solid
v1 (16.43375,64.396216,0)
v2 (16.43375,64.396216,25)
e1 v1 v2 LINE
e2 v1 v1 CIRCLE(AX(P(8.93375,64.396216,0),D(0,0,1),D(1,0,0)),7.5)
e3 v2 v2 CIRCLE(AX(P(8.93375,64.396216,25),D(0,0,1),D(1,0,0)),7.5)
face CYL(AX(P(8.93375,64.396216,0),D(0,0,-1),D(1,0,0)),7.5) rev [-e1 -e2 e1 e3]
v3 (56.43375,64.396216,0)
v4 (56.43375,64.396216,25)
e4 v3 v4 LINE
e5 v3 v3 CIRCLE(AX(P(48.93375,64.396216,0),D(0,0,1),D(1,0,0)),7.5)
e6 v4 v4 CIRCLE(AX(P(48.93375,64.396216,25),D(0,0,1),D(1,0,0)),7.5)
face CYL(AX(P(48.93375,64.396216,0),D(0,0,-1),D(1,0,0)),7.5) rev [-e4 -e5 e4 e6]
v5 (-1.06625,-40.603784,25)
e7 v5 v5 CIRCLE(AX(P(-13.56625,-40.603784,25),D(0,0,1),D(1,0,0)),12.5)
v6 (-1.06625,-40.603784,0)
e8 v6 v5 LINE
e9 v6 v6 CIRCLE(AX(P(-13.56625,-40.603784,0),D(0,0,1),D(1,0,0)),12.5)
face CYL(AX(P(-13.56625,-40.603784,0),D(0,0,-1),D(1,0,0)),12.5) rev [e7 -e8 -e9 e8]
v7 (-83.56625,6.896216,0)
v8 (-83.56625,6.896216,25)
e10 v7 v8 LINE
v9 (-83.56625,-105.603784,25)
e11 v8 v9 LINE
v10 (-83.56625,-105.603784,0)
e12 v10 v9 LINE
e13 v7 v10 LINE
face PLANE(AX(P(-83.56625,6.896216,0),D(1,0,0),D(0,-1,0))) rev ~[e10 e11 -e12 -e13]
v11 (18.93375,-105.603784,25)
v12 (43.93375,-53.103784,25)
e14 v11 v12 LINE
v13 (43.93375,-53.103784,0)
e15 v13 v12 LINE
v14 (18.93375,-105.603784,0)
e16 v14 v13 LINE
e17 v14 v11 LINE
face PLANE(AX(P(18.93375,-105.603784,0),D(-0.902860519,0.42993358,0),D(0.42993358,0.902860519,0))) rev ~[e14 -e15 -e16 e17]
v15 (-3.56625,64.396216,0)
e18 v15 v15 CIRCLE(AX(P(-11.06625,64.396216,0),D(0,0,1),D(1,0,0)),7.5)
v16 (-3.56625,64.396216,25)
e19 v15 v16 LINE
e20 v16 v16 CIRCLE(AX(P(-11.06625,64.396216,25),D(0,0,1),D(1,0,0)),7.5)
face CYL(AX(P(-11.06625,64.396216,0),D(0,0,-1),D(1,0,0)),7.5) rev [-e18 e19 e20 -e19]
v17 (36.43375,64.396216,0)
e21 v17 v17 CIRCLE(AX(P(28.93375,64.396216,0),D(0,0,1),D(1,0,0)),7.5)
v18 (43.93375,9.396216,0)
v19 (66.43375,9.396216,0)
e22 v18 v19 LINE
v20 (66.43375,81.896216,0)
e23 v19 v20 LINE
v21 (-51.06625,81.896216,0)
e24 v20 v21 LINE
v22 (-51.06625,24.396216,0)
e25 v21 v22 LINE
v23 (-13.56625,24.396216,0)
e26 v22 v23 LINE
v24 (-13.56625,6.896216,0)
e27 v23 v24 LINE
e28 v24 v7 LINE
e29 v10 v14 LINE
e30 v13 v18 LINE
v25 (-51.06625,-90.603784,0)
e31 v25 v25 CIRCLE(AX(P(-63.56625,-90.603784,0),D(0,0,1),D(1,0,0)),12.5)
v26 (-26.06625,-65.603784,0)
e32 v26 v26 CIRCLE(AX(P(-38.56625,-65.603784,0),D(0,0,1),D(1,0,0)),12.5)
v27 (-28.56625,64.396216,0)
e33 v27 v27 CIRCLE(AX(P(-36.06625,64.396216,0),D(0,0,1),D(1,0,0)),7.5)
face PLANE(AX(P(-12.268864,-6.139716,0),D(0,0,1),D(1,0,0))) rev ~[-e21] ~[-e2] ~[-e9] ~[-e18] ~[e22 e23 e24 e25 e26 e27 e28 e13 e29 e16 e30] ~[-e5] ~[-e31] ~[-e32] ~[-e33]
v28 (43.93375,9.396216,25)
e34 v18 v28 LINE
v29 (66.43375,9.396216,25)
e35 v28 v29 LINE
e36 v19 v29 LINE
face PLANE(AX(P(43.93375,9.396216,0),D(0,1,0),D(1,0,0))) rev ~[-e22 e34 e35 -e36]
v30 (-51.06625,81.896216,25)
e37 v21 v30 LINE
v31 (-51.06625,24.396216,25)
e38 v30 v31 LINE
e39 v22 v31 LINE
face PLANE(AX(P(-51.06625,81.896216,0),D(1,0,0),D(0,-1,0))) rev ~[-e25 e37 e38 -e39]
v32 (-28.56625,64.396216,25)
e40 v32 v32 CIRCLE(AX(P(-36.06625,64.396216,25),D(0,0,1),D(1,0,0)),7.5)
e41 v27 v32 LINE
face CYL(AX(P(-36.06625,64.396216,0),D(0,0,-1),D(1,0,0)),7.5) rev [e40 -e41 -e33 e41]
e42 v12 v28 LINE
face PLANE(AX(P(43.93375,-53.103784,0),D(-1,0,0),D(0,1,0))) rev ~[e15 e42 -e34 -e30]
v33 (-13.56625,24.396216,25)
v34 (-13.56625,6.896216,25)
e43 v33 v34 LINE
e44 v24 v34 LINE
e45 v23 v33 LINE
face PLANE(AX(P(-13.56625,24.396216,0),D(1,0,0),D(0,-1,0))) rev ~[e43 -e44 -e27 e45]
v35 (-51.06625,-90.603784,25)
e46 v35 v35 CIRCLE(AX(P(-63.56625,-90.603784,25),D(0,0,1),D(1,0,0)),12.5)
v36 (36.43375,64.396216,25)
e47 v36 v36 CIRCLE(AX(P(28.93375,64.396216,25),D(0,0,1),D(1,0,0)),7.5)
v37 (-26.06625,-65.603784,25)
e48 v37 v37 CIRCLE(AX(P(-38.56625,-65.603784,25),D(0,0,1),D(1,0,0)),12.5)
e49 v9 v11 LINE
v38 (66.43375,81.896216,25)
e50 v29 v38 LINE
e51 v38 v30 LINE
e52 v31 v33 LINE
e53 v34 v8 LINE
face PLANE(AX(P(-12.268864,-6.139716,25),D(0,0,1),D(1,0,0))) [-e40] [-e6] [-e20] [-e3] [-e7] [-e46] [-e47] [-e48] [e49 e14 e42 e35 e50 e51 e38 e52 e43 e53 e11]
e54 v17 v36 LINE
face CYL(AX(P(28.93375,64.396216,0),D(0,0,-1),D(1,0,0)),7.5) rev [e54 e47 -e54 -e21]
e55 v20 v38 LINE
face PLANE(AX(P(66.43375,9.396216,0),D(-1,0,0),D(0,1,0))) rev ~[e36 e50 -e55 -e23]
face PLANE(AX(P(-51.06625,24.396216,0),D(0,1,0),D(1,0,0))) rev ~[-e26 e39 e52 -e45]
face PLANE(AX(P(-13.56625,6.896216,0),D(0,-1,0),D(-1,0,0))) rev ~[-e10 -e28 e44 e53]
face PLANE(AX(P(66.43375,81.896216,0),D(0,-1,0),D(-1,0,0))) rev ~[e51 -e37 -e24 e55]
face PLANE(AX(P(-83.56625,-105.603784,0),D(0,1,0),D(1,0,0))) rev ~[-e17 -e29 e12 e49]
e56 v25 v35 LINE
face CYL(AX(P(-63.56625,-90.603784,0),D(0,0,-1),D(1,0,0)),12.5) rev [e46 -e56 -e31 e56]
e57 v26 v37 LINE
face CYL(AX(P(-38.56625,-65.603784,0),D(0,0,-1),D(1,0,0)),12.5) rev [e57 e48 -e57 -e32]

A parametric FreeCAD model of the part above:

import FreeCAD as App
import Part
import Sketcher
Q = App.Units.Quantity

doc = App.newDocument("Part")
body = doc.addObject("PartDesign::Body", "Body")

# Sketch on XY plane
sketch1 = body.newObject("Sketcher::SketchObject", "Sketch")
sketch1.AttachmentSupport = (doc.getObject("XY_Plane"), [""])
sketch1.MapMode = "FlatFace"
sketch1.addGeometry([
    Part.LineSegment(App.Vector(-83.56625, 6.896216, 0), App.Vector(-83.56625, -105.603784, 0)),  # 0
    Part.LineSegment(App.Vector(-83.56625, -105.603784, 0), App.Vector(18.93375, -105.603784, 0)),  # 1
    Part.LineSegment(App.Vector(18.93375, -105.603784, 0), App.Vector(43.93375, -53.103784, 0)),  # 2
    Part.LineSegment(App.Vector(43.93375, -53.103784, 0), App.Vector(43.93375, 9.396216, 0)),  # 3
    Part.LineSegment(App.Vector(43.93375, 9.396216, 0), App.Vector(66.43375, 9.396216, 0)),  # 4
    Part.LineSegment(App.Vector(66.43375, 9.396216, 0), App.Vector(66.43375, 81.896216, 0)),  # 5
    Part.LineSegment(App.Vector(66.43375, 81.896216, 0), App.Vector(-51.06625, 81.896216, 0)),  # 6
    Part.LineSegment(App.Vector(-51.06625, 81.896216, 0), App.Vector(-51.06625, 24.396216, 0)),  # 7
    Part.LineSegment(App.Vector(-51.06625, 24.396216, 0), App.Vector(-13.56625, 24.396216, 0)),  # 8
    Part.LineSegment(App.Vector(-13.56625, 24.396216, 0), App.Vector(-13.56625, 6.896216, 0)),  # 9
    Part.LineSegment(App.Vector(-13.56625, 6.896216, 0), App.Vector(-83.56625, 6.896216, 0)),  # 10
    Part.Circle(App.Vector(-63.56625, -90.603784, 0), App.Vector(0, 0, 1), 12.5),  # 11
    Part.Circle(App.Vector(-38.56625, -65.603784, 0), App.Vector(0, 0, 1), 12.5),  # 12
    Part.Circle(App.Vector(-13.56625, -40.603784, 0), App.Vector(0, 0, 1), 12.5),  # 13
    Part.Circle(App.Vector(-36.06625, 64.396216, 0), App.Vector(0, 0, 1), 7.5),  # 14
    Part.Circle(App.Vector(-11.06625, 64.396216, 0), App.Vector(0, 0, 1), 7.5),  # 15
    Part.Circle(App.Vector(8.93375, 64.396216, 0), App.Vector(0, 0, 1), 7.5),  # 16
    Part.Circle(App.Vector(28.93375, 64.396216, 0), App.Vector(0, 0, 1), 7.5),  # 17
    Part.Circle(App.Vector(48.93375, 64.396216, 0), App.Vector(0, 0, 1), 7.5),  # 18
], False)
sketch1.addConstraint([
    Sketcher.Constraint("Coincident", 0, 2, 1, 1),
    Sketcher.Constraint("Coincident", 1, 2, 2, 1),
    Sketcher.Constraint("Coincident", 2, 2, 3, 1),
    Sketcher.Constraint("Coincident", 3, 2, 4, 1),
    Sketcher.Constraint("Coincident", 4, 2, 5, 1),
    Sketcher.Constraint("Coincident", 5, 2, 6, 1),
    Sketcher.Constraint("Coincident", 6, 2, 7, 1),
    Sketcher.Constraint("Coincident", 7, 2, 8, 1),
    Sketcher.Constraint("Coincident", 8, 2, 9, 1),
    Sketcher.Constraint("Coincident", 9, 2, 10, 1),
    Sketcher.Constraint("Coincident", 10, 2, 0, 1),
    Sketcher.Constraint("Vertical", 0),
    Sketcher.Constraint("Horizontal", 1),
    Sketcher.Constraint("Vertical", 3),
    Sketcher.Constraint("Horizontal", 4),
    Sketcher.Constraint("Vertical", 5),
    Sketcher.Constraint("Horizontal", 6),
    Sketcher.Constraint("Vertical", 7),
    Sketcher.Constraint("Horizontal", 8),
    Sketcher.Constraint("Vertical", 9),
    Sketcher.Constraint("Horizontal", 10),
    Sketcher.Constraint("Equal", 11, 12),
    Sketcher.Constraint("Equal", 12, 13),
    Sketcher.Constraint("Equal", 14, 15),
    Sketcher.Constraint("Equal", 15, 16),
    Sketcher.Constraint("Equal", 16, 17),
    Sketcher.Constraint("Equal", 17, 18),
    Sketcher.Constraint("Horizontal", 14, 3, 15, 3),
    Sketcher.Constraint("Horizontal", 15, 3, 16, 3),
    Sketcher.Constraint("Horizontal", 16, 3, 17, 3),
    Sketcher.Constraint("Horizontal", 17, 3, 18, 3),
    Sketcher.Constraint("Vertical", 13, 3, 8, 2),
    Sketcher.Constraint("Diameter", 11, Q("25 mm")),
    Sketcher.Constraint("Diameter", 14, Q("15 mm")),
    Sketcher.Constraint("DistanceX", 10, 2, 10, 1, Q("70 mm")),
    Sketcher.Constraint("DistanceX", 1, 1, 1, 2, Q("102.5 mm")),
    Sketcher.Constraint("DistanceX", 4, 1, 4, 2, Q("22.5 mm")),
    Sketcher.Constraint("DistanceX", 6, 2, 6, 1, Q("117.5 mm")),
    Sketcher.Constraint("DistanceX", 8, 1, 8, 2, Q("37.5 mm")),
    Sketcher.Constraint("DistanceY", 0, 2, 0, 1, Q("112.5 mm")),
    Sketcher.Constraint("DistanceY", 3, 1, 3, 2, Q("62.5 mm")),
    Sketcher.Constraint("DistanceY", 5, 1, 5, 2, Q("72.5 mm")),
    Sketcher.Constraint("DistanceY", 7, 2, 7, 1, Q("57.5 mm")),
    Sketcher.Constraint("DistanceY", 9, 2, 9, 1, Q("17.5 mm")),
    Sketcher.Constraint("DistanceX", 11, 3, 12, 3, Q("25 mm")),
    Sketcher.Constraint("DistanceY", 11, 3, 12, 3, Q("25 mm")),
    Sketcher.Constraint("DistanceX", 12, 3, 13, 3, Q("25 mm")),
    Sketcher.Constraint("DistanceY", 12, 3, 13, 3, Q("25 mm")),
    Sketcher.Constraint("DistanceY", 13, 3, 14, 3, Q("105 mm")),
    Sketcher.Constraint("DistanceX", 14, 3, 15, 3, Q("25 mm")),
    Sketcher.Constraint("DistanceX", 15, 3, 16, 3, Q("20 mm")),
    Sketcher.Constraint("DistanceX", 16, 3, 17, 3, Q("20 mm")),
    Sketcher.Constraint("DistanceX", 17, 3, 18, 3, Q("20 mm")),
    Sketcher.Constraint("DistanceY", 0, 2, 11, 3, Q("15 mm")),
    Sketcher.Constraint("DistanceX", 16, 3, 1, 2, Q("10 mm")),
    Sketcher.Constraint("DistanceX", 11, 3, -1, 1, Q("63.56625 mm")),
    Sketcher.Constraint("DistanceY", 11, 3, -1, 1, Q("90.603784 mm")),
])
pad1 = body.newObject("PartDesign::Pad", "Pad")
pad1.Profile = sketch1
pad1.Length = 25

doc.recompute()
